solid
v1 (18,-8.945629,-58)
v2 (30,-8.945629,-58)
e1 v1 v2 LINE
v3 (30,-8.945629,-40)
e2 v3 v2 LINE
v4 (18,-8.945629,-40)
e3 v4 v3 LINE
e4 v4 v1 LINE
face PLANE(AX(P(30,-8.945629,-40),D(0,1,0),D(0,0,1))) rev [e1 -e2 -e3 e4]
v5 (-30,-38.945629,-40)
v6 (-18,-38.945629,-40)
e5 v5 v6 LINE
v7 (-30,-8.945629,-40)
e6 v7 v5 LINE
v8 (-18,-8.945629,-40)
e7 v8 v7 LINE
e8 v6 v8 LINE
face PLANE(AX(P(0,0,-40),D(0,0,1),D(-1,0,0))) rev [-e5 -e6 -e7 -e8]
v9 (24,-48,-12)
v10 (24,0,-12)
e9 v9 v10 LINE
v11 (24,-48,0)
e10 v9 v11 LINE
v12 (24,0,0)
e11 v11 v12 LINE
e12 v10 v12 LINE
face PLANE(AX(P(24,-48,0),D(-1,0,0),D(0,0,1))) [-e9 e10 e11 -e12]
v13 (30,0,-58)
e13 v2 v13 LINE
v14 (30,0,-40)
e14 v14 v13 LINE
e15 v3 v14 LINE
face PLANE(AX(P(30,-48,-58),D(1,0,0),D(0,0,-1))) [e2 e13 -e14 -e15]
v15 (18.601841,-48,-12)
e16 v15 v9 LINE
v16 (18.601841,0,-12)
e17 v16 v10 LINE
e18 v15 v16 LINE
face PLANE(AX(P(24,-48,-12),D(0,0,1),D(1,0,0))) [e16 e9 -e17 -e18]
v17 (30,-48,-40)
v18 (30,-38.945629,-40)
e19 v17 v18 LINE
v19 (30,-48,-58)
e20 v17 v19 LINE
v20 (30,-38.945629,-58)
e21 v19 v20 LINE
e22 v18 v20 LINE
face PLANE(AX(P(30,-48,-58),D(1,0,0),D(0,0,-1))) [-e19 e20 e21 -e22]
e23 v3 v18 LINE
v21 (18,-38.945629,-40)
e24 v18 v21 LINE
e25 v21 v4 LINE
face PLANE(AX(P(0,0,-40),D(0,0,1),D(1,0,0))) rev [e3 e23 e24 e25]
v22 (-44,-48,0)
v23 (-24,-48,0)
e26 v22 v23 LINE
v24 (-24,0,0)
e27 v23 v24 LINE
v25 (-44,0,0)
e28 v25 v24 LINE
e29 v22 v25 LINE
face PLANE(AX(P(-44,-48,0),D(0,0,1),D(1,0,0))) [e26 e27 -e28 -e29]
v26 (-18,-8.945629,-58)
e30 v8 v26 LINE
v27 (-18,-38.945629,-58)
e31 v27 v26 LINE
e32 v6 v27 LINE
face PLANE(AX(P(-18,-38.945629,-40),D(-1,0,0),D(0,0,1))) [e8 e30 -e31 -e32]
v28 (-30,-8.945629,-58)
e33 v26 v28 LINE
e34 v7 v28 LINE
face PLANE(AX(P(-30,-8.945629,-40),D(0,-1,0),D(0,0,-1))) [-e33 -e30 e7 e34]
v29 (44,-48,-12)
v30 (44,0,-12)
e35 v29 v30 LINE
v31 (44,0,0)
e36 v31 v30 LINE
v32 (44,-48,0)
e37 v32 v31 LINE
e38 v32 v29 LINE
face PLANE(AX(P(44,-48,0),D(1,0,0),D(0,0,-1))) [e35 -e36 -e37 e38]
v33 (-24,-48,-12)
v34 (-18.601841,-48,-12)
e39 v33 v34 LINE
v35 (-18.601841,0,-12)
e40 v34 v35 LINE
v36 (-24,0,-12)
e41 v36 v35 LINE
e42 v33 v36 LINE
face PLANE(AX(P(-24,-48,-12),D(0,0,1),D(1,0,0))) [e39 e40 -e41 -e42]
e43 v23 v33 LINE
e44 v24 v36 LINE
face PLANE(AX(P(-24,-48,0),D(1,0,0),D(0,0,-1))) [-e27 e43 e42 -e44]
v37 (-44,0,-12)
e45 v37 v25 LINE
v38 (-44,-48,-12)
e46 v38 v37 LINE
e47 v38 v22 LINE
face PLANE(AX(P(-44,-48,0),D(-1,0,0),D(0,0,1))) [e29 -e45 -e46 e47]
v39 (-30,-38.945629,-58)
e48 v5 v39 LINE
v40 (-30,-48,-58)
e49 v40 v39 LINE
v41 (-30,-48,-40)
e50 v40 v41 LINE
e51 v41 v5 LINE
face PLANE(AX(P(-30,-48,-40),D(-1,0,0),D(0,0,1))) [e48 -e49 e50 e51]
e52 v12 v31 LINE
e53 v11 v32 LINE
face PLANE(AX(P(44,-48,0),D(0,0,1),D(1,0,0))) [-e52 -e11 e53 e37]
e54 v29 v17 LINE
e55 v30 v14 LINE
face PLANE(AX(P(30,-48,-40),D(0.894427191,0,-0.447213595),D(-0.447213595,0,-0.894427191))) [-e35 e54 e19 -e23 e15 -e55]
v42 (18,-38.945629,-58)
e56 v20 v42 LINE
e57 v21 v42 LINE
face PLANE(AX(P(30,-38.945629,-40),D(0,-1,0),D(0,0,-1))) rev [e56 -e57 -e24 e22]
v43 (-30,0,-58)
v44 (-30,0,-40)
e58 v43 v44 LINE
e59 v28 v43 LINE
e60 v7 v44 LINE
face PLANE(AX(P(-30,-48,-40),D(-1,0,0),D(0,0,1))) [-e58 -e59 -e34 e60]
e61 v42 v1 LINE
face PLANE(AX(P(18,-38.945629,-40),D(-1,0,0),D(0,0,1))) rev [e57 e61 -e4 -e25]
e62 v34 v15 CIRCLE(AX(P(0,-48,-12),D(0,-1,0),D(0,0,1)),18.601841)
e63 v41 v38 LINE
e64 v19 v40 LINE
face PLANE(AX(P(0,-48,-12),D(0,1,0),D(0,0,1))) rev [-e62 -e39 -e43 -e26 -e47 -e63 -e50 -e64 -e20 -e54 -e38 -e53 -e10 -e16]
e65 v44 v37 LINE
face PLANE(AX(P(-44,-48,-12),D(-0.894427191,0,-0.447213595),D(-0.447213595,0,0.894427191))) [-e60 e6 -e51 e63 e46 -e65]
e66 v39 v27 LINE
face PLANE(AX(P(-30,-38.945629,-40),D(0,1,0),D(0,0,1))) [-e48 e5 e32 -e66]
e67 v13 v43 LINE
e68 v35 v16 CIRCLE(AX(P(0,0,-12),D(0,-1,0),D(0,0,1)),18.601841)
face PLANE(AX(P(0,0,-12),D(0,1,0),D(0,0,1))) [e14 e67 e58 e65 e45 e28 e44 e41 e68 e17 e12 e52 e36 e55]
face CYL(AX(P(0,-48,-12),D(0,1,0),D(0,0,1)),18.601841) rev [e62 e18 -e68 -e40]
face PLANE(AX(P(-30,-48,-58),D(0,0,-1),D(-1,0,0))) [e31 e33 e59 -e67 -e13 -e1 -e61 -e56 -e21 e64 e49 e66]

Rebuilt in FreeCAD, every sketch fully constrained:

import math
import FreeCAD as App
import Part
import Sketcher

V = App.Vector


def add_polygon(sketch, points):
    """Adds a closed chain of lines whose ends are joined by coincident constraints."""
    first, n = sketch.GeometryCount, len(points)
    for a, b in zip(points, points[1:] + points[:1]):
        sketch.addGeometry(Part.LineSegment(App.Vector(*a, 0), App.Vector(*b, 0)), False)
    for i in range(n):
        sketch.addConstraint(Sketcher.Constraint("Coincident", first + i, 2, first + (i + 1) % n, 1))

doc = App.newDocument("Part")
body = doc.addObject("PartDesign::Body", "Body")

# Sketch on XZ plane
sketch1 = body.newObject("Sketcher::SketchObject", "Sketch")
sketch1.AttachmentSupport = (doc.getObject("XZ_Plane"), [""])
sketch1.MapMode = "FlatFace"
sketch1.addGeometry(Part.LineSegment(V(-44, 0, 0), V(-24, 0, 0)), False)
sketch1.addGeometry(Part.LineSegment(V(-24, 0, 0), V(-24, -12, 0)), False)
sketch1.addGeometry(Part.LineSegment(V(-24, -12, 0), V(-19, -12, 0)), False)
sketch1.addGeometry(Part.ArcOfCircle(Part.Circle(V(0, -12, 0), V(0, 0, 1), 19), math.radians(180), math.radians(360)), False)
sketch1.addGeometry(Part.LineSegment(V(19, -12, 0), V(24, -12, 0)), False)
sketch1.addGeometry(Part.LineSegment(V(24, -12, 0), V(24, 0, 0)), False)
sketch1.addGeometry(Part.LineSegment(V(24, 0, 0), V(44, 0, 0)), False)
sketch1.addGeometry(Part.LineSegment(V(44, 0, 0), V(44, -12, 0)), False)
sketch1.addGeometry(Part.LineSegment(V(44, -12, 0), V(30, -40, 0)), False)
sketch1.addGeometry(Part.LineSegment(V(30, -40, 0), V(30, -58, 0)), False)
sketch1.addGeometry(Part.LineSegment(V(30, -58, 0), V(-30, -58, 0)), False)
sketch1.addGeometry(Part.LineSegment(V(-30, -58, 0), V(-30, -40, 0)), False)
sketch1.addGeometry(Part.LineSegment(V(-30, -40, 0), V(-44, -12, 0)), False)
sketch1.addGeometry(Part.LineSegment(V(-44, -12, 0), V(-44, 0, 0)), False)
sketch1.addConstraint(Sketcher.Constraint("Coincident", 0, 2, 1, 1))
sketch1.addConstraint(Sketcher.Constraint("Coincident", 1, 2, 2, 1))
sketch1.addConstraint(Sketcher.Constraint("Coincident", 2, 2, 3, 1))
sketch1.addConstraint(Sketcher.Constraint("Coincident", 3, 2, 4, 1))
sketch1.addConstraint(Sketcher.Constraint("Coincident", 4, 2, 5, 1))
sketch1.addConstraint(Sketcher.Constraint("Coincident", 5, 2, 6, 1))
sketch1.addConstraint(Sketcher.Constraint("Coincident", 6, 2, 7, 1))
sketch1.addConstraint(Sketcher.Constraint("Coincident", 7, 2, 8, 1))
sketch1.addConstraint(Sketcher.Constraint("Coincident", 8, 2, 9, 1))
sketch1.addConstraint(Sketcher.Constraint("Coincident", 9, 2, 10, 1))
sketch1.addConstraint(Sketcher.Constraint("Coincident", 10, 2, 11, 1))
sketch1.addConstraint(Sketcher.Constraint("Coincident", 11, 2, 12, 1))
sketch1.addConstraint(Sketcher.Constraint("Coincident", 12, 2, 13, 1))
sketch1.addConstraint(Sketcher.Constraint("Coincident", 13, 2, 0, 1))
sketch1.addConstraint(Sketcher.Constraint("Horizontal", 0))
sketch1.addConstraint(Sketcher.Constraint("Vertical", 1))
sketch1.addConstraint(Sketcher.Constraint("Horizontal", 2))
sketch1.addConstraint(Sketcher.Constraint("Horizontal", 4))
sketch1.addConstraint(Sketcher.Constraint("Vertical", 5))
sketch1.addConstraint(Sketcher.Constraint("Horizontal", 6))
sketch1.addConstraint(Sketcher.Constraint("Vertical", 7))
sketch1.addConstraint(Sketcher.Constraint("Vertical", 9))
sketch1.addConstraint(Sketcher.Constraint("Horizontal", 10))
sketch1.addConstraint(Sketcher.Constraint("Vertical", 11))
sketch1.addConstraint(Sketcher.Constraint("Vertical", 13))
sketch1.addConstraint(Sketcher.Constraint("Symmetric", 0, 2, 5, 2, -1, 1))
sketch1.addConstraint(Sketcher.Constraint("Symmetric", 2, 2, 3, 2, -2))
sketch1.addConstraint(Sketcher.Constraint("Symmetric", 8, 2, 11, 2, -2))
sketch1.addConstraint(Sketcher.Constraint("Symmetric", 7, 2, 12, 2, -2))
sketch1.addConstraint(Sketcher.Constraint("PointOnObject", 0, 2, -1))
sketch1.addConstraint(Sketcher.Constraint("Horizontal", 3, 3, 1, 2))
sketch1.addConstraint(Sketcher.Constraint("Horizontal", 4, 2, 7, 2))
sketch1.addConstraint(Sketcher.Constraint("DistanceX", 0, 1, 0, 2, 20.0))
sketch1.addConstraint(Sketcher.Constraint("DistanceX", 10, 2, 10, 1, 60.0))
sketch1.addConstraint(Sketcher.Constraint("DistanceY", 1, 2, 1, 1, 12.0))
sketch1.addConstraint(Sketcher.Constraint("DistanceY", 9, 2, 9, 1, 18.0))
sketch1.addConstraint(Sketcher.Constraint("DistanceX", 0, 2, -1, 1, 24.0))
sketch1.addConstraint(Sketcher.Constraint("DistanceY", 8, 2, -1, 1, 40.0))
sketch1.addConstraint(Sketcher.Constraint("Radius", 3, 18.601841))
pad1 = body.newObject("PartDesign::Pad", "Pad")
pad1.Profile = sketch1
pad1.Length = 48

# Sketch on XY plane
sketch2 = body.newObject("Sketcher::SketchObject", "Sketch001")
sketch2.AttachmentSupport = (doc.getObject("XY_Plane"), [""])
sketch2.MapMode = "FlatFace"
sketch2.AttachmentOffset = App.Placement(V(0, 0, -58), App.Rotation())
add_polygon(sketch2, [(30, -9), (30, -39), (18, -39), (18, -9)])  # lines 0-3
sketch2.addConstraint(Sketcher.Constraint("Vertical", 0))
sketch2.addConstraint(Sketcher.Constraint("Horizontal", 1))
sketch2.addConstraint(Sketcher.Constraint("Vertical", 2))
sketch2.addConstraint(Sketcher.Constraint("Horizontal", 3))
sketch2.addConstraint(Sketcher.Constraint("DistanceX", 1, 2, 1, 1, 12.0))
sketch2.addConstraint(Sketcher.Constraint("DistanceY", 0, 2, 0, 1, 30.0))
sketch2.addConstraint(Sketcher.Constraint("DistanceX", -1, 1, 0, 2, 30.0))
sketch2.addConstraint(Sketcher.Constraint("DistanceY", 0, 2, -1, 1, 38.945629))
pocket1 = body.newObject("PartDesign::Pocket", "Pocket")
pocket1.Profile = sketch2
pocket1.Length = 18
pocket1.Reversed = True
doc.recompute()

mirrored = body.newObject("PartDesign::Mirrored", "Mirrored")
mirrored.Originals = [pocket1]
mirrored.MirrorPlane = (doc.getObject("YZ_Plane"), [""])
body.Tip = mirrored

doc.recompute()
